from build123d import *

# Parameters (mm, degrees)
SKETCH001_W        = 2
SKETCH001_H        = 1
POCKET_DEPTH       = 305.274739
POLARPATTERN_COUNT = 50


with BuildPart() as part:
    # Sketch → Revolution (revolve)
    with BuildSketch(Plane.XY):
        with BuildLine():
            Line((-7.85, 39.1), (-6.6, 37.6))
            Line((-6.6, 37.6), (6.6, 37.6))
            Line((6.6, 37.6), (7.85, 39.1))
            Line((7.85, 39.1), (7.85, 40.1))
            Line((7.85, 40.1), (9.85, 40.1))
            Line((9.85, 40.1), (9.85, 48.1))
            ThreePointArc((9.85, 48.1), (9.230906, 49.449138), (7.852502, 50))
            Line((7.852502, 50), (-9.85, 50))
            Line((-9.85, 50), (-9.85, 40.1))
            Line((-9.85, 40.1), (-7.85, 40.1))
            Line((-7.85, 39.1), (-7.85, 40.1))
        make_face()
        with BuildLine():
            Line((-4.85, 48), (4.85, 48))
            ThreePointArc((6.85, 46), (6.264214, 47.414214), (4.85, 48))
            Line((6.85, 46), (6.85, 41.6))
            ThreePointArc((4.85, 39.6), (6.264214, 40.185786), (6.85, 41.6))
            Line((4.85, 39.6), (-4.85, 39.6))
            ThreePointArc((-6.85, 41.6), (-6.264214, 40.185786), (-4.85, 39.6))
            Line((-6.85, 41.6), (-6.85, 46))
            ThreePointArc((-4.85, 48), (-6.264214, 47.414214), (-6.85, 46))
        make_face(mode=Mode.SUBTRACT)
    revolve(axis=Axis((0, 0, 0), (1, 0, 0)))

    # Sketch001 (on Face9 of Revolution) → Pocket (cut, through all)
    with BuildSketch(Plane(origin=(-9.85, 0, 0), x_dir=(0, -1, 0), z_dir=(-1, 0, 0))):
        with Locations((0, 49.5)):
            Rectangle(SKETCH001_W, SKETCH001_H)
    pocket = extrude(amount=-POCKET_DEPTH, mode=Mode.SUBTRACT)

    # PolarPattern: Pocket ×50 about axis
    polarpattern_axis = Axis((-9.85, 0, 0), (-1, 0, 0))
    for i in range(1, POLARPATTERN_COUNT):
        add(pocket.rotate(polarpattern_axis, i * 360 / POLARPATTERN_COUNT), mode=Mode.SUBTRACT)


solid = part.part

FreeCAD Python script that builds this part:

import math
import FreeCAD as App
import Part
import Sketcher
from FreeCAD import Vector

doc = App.newDocument("Part")
params = doc.addObject("Spreadsheet::Sheet", "Params")
for row, (alias, value) in enumerate([
    ("sketch1_radius", "2 mm"),
    ("sketch1_width", "2 mm"),
    ("sketch1_height", "1 mm"),
    ("sketch1_height2", "8 mm"),
    ("sketch1_width2", "13.2 mm"),
    ("revolution_angle", "360 deg"),
    ("sketch2_width", "2 mm"),
    ("sketch2_height", "1 mm"),
], start=1):
    params.set(f"A{row}", alias)
    params.set(f"B{row}", "=" + value)
    params.setAlias(f"B{row}", alias)

body = doc.addObject("PartDesign::Body", "Body")

# Sketch on XY plane
sketch1 = doc.addObject("Sketcher::SketchObject", "Sketch")
body.addObject(sketch1)
sketch1.AttachmentSupport = (doc.XY_Plane, [""])
sketch1.MapMode = "FlatFace"
sketch1.addGeometry([
    Part.LineSegment(Vector(-7.85, 39.1, 0), Vector(-6.6, 37.6, 0)),  # 0
    Part.LineSegment(Vector(-6.6, 37.6, 0), Vector(6.6, 37.6, 0)),  # 1
    Part.LineSegment(Vector(6.6, 37.6, 0), Vector(7.85, 39.1, 0)),  # 2
    Part.LineSegment(Vector(7.85, 39.1, 0), Vector(7.85, 40.1, 0)),  # 3
    Part.LineSegment(Vector(7.85, 40.1, 0), Vector(9.85, 40.1, 0)),  # 4
    Part.LineSegment(Vector(9.85, 40.1, 0), Vector(9.85, 48.1, 0)),  # 5
    Part.ArcOfCircle(Part.Circle(Vector(7.852501, 48, 0), Vector(0, 0, 1), 2), math.radians(2.865989), math.radians(89.999983)),  # 6
    Part.LineSegment(Vector(7.852502, 50, 0), Vector(-9.85, 50, 0)),  # 7
    Part.LineSegment(Vector(-9.85, 50, 0), Vector(-9.85, 40.1, 0)),  # 8
    Part.LineSegment(Vector(-9.85, 40.1, 0), Vector(-7.85, 40.1, 0)),  # 9
    Part.LineSegment(Vector(-7.85, 40.1, 0), Vector(-7.85, 39.1, 0)),  # 10
    Part.ArcOfCircle(Part.Circle(Vector(-4.850001, 46.000001, 0), Vector(0, 0, 1), 1.999999), math.radians(89.999957), math.radians(180.000043)),  # 11
    Part.LineSegment(Vector(-4.85, 48, 0), Vector(4.85, 48, 0)),  # 12
    Part.ArcOfCircle(Part.Circle(Vector(4.850001, 46.000001, 0), Vector(0, 0, 1), 1.999999), math.radians(-0.000043), math.radians(90.000043)),  # 13
    Part.LineSegment(Vector(6.85, 46, 0), Vector(6.85, 41.6, 0)),  # 14
    Part.ArcOfCircle(Part.Circle(Vector(4.850001, 41.599999, 0), Vector(0, 0, 1), 1.999999), math.radians(-90.000043), math.radians(0.000043)),  # 15
    Part.LineSegment(Vector(4.85, 39.6, 0), Vector(-4.85, 39.6, 0)),  # 16
    Part.ArcOfCircle(Part.Circle(Vector(-4.850001, 41.599999, 0), Vector(0, 0, 1), 1.999999), math.radians(179.999957), math.radians(270.000043)),  # 17
    Part.LineSegment(Vector(-6.85, 41.6, 0), Vector(-6.85, 46, 0)),  # 18
], False)
sketch1.addConstraint([
    Sketcher.Constraint("Coincident", 0, 2, 1, 1),
    Sketcher.Constraint("Coincident", 1, 2, 2, 1),
    Sketcher.Constraint("Coincident", 2, 2, 3, 1),
    Sketcher.Constraint("Coincident", 3, 2, 4, 1),
    Sketcher.Constraint("Coincident", 4, 2, 5, 1),
    Sketcher.Constraint("Coincident", 5, 2, 6, 1),
    Sketcher.Constraint("Tangent", 6, 2, 7, 1),
    Sketcher.Constraint("Coincident", 7, 2, 8, 1),
    Sketcher.Constraint("Coincident", 8, 2, 9, 1),
    Sketcher.Constraint("Coincident", 9, 2, 10, 1),
    Sketcher.Constraint("Coincident", 10, 2, 0, 1),
    Sketcher.Constraint("Tangent", 11, 1, 12, 1),
    Sketcher.Constraint("Tangent", 12, 2, 13, 2),
    Sketcher.Constraint("Tangent", 13, 1, 14, 1),
    Sketcher.Constraint("Tangent", 14, 2, 15, 2),
    Sketcher.Constraint("Tangent", 15, 1, 16, 1),
    Sketcher.Constraint("Tangent", 16, 2, 17, 2),
    Sketcher.Constraint("Tangent", 17, 1, 18, 1),
    Sketcher.Constraint("Tangent", 18, 2, 11, 2),
    Sketcher.Constraint("Horizontal", 1),
    Sketcher.Constraint("Vertical", 3),
    Sketcher.Constraint("Horizontal", 4),
    Sketcher.Constraint("Vertical", 5),
    Sketcher.Constraint("Horizontal", 7),
    Sketcher.Constraint("Vertical", 8),
    Sketcher.Constraint("Horizontal", 9),
    Sketcher.Constraint("Vertical", 10),
    Sketcher.Constraint("Horizontal", 12),
    Sketcher.Constraint("Vertical", 14),
    Sketcher.Constraint("Horizontal", 16),
    Sketcher.Constraint("Vertical", 18),
    Sketcher.Constraint("Equal", 6, 11),
    Sketcher.Constraint("Equal", 11, 13),
    Sketcher.Constraint("Equal", 13, 15),
    Sketcher.Constraint("Equal", 15, 17),
    Sketcher.Constraint("Symmetric", 4, 2, 8, 2, -2),
    Sketcher.Constraint("Symmetric", 2, 2, 10, 2, -2),
    Sketcher.Constraint("Horizontal", 6, 3, 11, 1),
    Sketcher.Constraint("Equal", 0, 2),
    Sketcher.Constraint("Radius", 6, 2.0),
    Sketcher.Constraint("DistanceX", 4, 1, 4, 2, 2.0),
    Sketcher.Constraint("DistanceY", 3, 1, 3, 2, 1.0),
    Sketcher.Constraint("DistanceY", 5, 1, 5, 2, 8.0),
    Sketcher.Constraint("DistanceX", 1, 1, 1, 2, 13.2),
    Sketcher.Constraint("DistanceX", 12, 1, 12, 2, 9.7),
    Sketcher.Constraint("DistanceY", 8, 2, 8, 1, 9.9),
    Sketcher.Constraint("DistanceY", 14, 2, 14, 1, 4.4),
    Sketcher.Constraint("DistanceY", -1, 1, 6, 3, 48.0),
    Sketcher.Constraint("DistanceY", 0, 2, 17, 3, 3.999999),
    Sketcher.Constraint("DistanceX", 15, 3, 2, 2, 2.999999),
    Sketcher.Constraint("DistanceX", 7, 2, 11, 3, 4.999999),
])
sketch1.setExpression("Constraints[39]", "Params.sketch1_radius")
sketch1.setExpression("Constraints[40]", "Params.sketch1_width")
sketch1.setExpression("Constraints[41]", "Params.sketch1_height")
sketch1.setExpression("Constraints[42]", "Params.sketch1_height2")
sketch1.setExpression("Constraints[43]", "Params.sketch1_width2")
revolution = doc.addObject("PartDesign::Revolution", "Revolution")
body.addObject(revolution)
revolution.Profile = sketch1
revolution.ReferenceAxis = (sketch1, ["H_Axis"])
revolution.setExpression("Angle", "Params.revolution_angle")

# Sketch on YZ plane
sketch2 = doc.addObject("Sketcher::SketchObject", "Sketch001")
body.addObject(sketch2)
sketch2.AttachmentSupport = (doc.YZ_Plane, [""])
sketch2.MapMode = "FlatFace"
sketch2.AttachmentOffset = App.Placement(Vector(0, 0, -9.85), App.Rotation())
sketch2.addGeometry([
    Part.LineSegment(Vector(1, 50, 0), Vector(1, 49, 0)),
    Part.LineSegment(Vector(1, 49, 0), Vector(-1, 49, 0)),
    Part.LineSegment(Vector(-1, 49, 0), Vector(-1, 50, 0)),
    Part.LineSegment(Vector(-1, 50, 0), Vector(1, 50, 0)),
], False)
sketch2.addConstraint([
    Sketcher.Constraint("Coincident", 0, 2, 1, 1),
    Sketcher.Constraint("Coincident", 1, 2, 2, 1),
    Sketcher.Constraint("Coincident", 2, 2, 3, 1),
    Sketcher.Constraint("Coincident", 3, 2, 0, 1),
    Sketcher.Constraint("Vertical", 0),
    Sketcher.Constraint("Horizontal", 1),
    Sketcher.Constraint("Vertical", 2),
    Sketcher.Constraint("Horizontal", 3),
    Sketcher.Constraint("DistanceX", 1, 2, 1, 1, 2.0),
    Sketcher.Constraint("DistanceY", 0, 2, 0, 1, 1.0),
    Sketcher.Constraint("DistanceX", -1, 1, 0, 2, 1.0),
    Sketcher.Constraint("DistanceY", -1, 1, 0, 2, 49.0),
])
sketch2.setExpression("Constraints[8]", "Params.sketch2_width")
sketch2.setExpression("Constraints[9]", "Params.sketch2_height")
pocket1 = doc.addObject("PartDesign::Pocket", "Pocket")
body.addObject(pocket1)
pocket1.Profile = sketch2
pocket1.Type = "ThroughAll"
pocket1.Reversed = True
doc.recompute()

polarpattern = doc.addObject("PartDesign::PolarPattern", "PolarPattern")
body.addObject(polarpattern)
polarpattern.Originals = [pocket1]
polarpattern.Axis = (doc.X_Axis, [""])
polarpattern.Angle = 360
polarpattern.Occurrences = 50
body.Tip = polarpattern

doc.recompute()
